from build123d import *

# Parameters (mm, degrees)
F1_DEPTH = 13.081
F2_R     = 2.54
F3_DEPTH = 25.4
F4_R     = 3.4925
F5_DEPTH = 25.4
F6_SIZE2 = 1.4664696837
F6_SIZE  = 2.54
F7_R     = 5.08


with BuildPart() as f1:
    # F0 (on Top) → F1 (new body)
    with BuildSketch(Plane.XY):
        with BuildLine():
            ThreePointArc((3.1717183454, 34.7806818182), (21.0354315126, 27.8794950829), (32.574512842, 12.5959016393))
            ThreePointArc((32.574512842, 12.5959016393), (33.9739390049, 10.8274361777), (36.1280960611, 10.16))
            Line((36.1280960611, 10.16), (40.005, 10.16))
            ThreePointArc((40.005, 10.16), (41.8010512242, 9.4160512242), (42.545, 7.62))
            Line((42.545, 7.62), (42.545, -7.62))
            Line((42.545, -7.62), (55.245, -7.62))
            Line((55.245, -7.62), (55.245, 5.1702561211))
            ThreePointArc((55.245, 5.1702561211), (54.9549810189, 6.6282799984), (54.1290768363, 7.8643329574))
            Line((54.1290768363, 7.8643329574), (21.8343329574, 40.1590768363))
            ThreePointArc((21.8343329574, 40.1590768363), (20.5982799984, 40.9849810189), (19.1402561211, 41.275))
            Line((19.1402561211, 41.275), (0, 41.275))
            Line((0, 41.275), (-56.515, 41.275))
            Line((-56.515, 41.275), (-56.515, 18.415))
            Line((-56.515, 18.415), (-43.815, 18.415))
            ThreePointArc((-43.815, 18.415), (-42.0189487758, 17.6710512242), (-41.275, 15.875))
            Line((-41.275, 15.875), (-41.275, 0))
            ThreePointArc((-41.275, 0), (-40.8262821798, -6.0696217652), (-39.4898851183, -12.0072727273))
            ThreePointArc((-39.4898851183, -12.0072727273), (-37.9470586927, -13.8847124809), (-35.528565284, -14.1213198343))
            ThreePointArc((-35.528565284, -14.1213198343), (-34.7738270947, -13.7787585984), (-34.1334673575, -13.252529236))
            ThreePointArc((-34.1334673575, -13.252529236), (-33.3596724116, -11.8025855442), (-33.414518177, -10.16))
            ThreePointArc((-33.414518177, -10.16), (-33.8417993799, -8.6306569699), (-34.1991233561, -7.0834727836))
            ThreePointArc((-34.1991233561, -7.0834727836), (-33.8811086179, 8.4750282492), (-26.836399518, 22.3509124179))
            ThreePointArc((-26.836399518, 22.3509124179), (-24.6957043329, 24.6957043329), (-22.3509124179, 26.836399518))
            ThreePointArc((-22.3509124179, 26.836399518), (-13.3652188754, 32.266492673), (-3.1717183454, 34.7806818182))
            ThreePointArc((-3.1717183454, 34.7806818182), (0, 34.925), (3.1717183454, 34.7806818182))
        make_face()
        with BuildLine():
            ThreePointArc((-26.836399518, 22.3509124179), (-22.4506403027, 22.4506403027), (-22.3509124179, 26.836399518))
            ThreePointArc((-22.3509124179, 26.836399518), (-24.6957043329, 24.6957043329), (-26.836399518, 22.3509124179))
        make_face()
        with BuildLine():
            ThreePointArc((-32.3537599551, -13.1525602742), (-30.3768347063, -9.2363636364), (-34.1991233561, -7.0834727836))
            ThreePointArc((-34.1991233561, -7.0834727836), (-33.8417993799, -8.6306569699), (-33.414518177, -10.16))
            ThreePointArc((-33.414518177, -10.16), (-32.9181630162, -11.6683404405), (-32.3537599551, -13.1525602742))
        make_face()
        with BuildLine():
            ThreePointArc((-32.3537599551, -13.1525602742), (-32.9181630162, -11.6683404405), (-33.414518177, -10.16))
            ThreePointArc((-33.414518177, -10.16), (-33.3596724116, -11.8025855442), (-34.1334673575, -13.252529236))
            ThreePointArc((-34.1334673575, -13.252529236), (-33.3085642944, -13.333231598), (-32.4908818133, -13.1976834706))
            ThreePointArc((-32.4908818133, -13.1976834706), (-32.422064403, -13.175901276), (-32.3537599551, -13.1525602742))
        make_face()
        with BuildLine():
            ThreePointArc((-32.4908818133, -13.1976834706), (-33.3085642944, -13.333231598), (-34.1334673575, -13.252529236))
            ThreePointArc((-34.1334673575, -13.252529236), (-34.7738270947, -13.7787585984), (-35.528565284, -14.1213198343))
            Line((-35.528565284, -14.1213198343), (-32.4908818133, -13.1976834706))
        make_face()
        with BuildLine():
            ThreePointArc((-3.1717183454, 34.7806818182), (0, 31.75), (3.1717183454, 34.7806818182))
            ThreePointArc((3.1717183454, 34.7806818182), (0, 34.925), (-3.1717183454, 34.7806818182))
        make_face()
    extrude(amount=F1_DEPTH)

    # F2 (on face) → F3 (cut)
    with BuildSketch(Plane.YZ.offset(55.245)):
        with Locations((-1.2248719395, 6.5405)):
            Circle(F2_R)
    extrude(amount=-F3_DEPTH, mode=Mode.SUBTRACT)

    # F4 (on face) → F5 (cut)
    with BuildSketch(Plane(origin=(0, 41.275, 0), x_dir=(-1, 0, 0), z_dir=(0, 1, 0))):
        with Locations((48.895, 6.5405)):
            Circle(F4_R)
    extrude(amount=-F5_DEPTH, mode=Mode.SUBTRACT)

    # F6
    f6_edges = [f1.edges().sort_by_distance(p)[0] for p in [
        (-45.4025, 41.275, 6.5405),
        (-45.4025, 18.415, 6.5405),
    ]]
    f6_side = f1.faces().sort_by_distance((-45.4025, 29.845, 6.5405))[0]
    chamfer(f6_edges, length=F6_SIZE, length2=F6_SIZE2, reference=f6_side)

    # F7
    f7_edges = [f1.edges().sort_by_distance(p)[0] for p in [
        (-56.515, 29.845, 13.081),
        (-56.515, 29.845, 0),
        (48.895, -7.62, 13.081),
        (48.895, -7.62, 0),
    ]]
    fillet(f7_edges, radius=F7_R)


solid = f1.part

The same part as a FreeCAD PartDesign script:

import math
import FreeCAD as App
import Part
import Sketcher
from FreeCAD import Vector
Q = App.Units.Quantity


def edges_at(feature, points):
    """Names of the edges that pass closest to the given points."""
    edges = feature.Shape.Edges
    near = lambda p: min(range(len(edges)), key=lambda i: edges[i].distToShape(Part.Vertex(*p))[0])
    return sorted({f"Edge{near(p) + 1}" for p in points})

doc = App.newDocument("Part")
body = doc.addObject("PartDesign::Body", "Body")

sketch1 = body.newObject("Sketcher::SketchObject", "Sketch")
sketch1.AttachmentSupport = (doc.getObject("XY_Plane"), [""])
sketch1.MapMode = "FlatFace"
sketch1.addGeometry(Part.ArcOfCircle(Part.Circle(Vector(0, 0, 0), Vector(0, 0, 1), 34.925), math.radians(21.140473), math.radians(84.789497)), False)
sketch1.addGeometry(Part.ArcOfCircle(Part.Circle(Vector(36.128096, 13.97, 0), Vector(0, 0, 1), 3.81), math.radians(-158.859527), math.radians(-90)), False)
sketch1.addGeometry(Part.LineSegment(Vector(36.128096, 10.16, 0), Vector(40.005, 10.16, 0)), False)
sketch1.addGeometry(Part.ArcOfCircle(Part.Circle(Vector(40.005, 7.62, 0), Vector(0, 0, 1), 2.54), math.radians(0), math.radians(90)), False)
sketch1.addGeometry(Part.LineSegment(Vector(42.545, 7.62, 0), Vector(42.545, -7.62, 0)), False)
sketch1.addGeometry(Part.LineSegment(Vector(42.545, -7.62, 0), Vector(55.245, -7.62, 0)), False)
sketch1.addGeometry(Part.LineSegment(Vector(55.245, -7.62, 0), Vector(55.245, 5.170256, 0)), False)
sketch1.addGeometry(Part.ArcOfCircle(Part.Circle(Vector(51.435, 5.170256, 0), Vector(0, 0, 1), 3.81), math.radians(0), math.radians(45)), False)
sketch1.addGeometry(Part.LineSegment(Vector(54.129077, 7.864333, 0), Vector(21.834333, 40.159077, 0)), False)
sketch1.addGeometry(Part.ArcOfCircle(Part.Circle(Vector(19.140256, 37.465, 0), Vector(0, 0, 1), 3.81), math.radians(45), math.radians(90)), False)
sketch1.addGeometry(Part.LineSegment(Vector(19.140256, 41.275, 0), Vector(-56.515, 41.275, 0)), False)
sketch1.addGeometry(Part.LineSegment(Vector(-56.515, 41.275, 0), Vector(-56.515, 18.415, 0)), False)
sketch1.addGeometry(Part.LineSegment(Vector(-56.515, 18.415, 0), Vector(-43.815, 18.415, 0)), False)
sketch1.addGeometry(Part.ArcOfCircle(Part.Circle(Vector(-43.815, 15.875, 0), Vector(0, 0, 1), 2.54), math.radians(0), math.radians(90)), False)
sketch1.addGeometry(Part.LineSegment(Vector(-41.275, 15.875, 0), Vector(-41.275, 0, 0)), False)
sketch1.addGeometry(Part.ArcOfCircle(Part.Circle(Vector(0, 0, 0), Vector(0, 0, 1), 41.275), math.radians(-180), math.radians(-163.08761)), False)
sketch1.addGeometry(Part.ArcOfCircle(Part.Circle(Vector(-36.452202, -11.083636, 0), Vector(0, 0, 1), 3.175), math.radians(-163.08761), math.radians(-73.08761)), False)
sketch1.addGeometry(Part.LineSegment(Vector(-35.528565, -14.12132, 0), Vector(-32.490882, -13.197683, 0)), False)
sketch1.addGeometry(Part.ArcOfCircle(Part.Circle(Vector(-33.414518, -10.16, 0), Vector(0, 0, 1), 3.175), math.radians(-73.08761), math.radians(-70.482359)), False)
sketch1.addGeometry(Part.ArcOfCircle(Part.Circle(Vector(-33.414518, -10.16, 0), Vector(0, 0, 1), 3.175), math.radians(-70.482359), math.radians(104.307139)), False)
sketch1.addGeometry(Part.ArcOfCircle(Part.Circle(Vector(0, 0, 0), Vector(0, 0, 1), 34.925), math.radians(140.210503), math.radians(191.701887)), False)
sketch1.addGeometry(Part.ArcOfCircle(Part.Circle(Vector(-24.695704, 24.695704, 0), Vector(0, 0, 1), 3.175), math.radians(-132.394749), math.radians(42.394749)), False)
sketch1.addGeometry(Part.ArcOfCircle(Part.Circle(Vector(0, 0, 0), Vector(0, 0, 1), 34.925), math.radians(95.210503), math.radians(129.789497)), False)
sketch1.addGeometry(Part.ArcOfCircle(Part.Circle(Vector(0, 34.925, 0), Vector(0, 0, 1), 3.175), math.radians(-177.394749), math.radians(-2.605251)), False)
sketch1.addConstraint(Sketcher.Constraint("Tangent", 0, 1, 1, 1))
sketch1.addConstraint(Sketcher.Constraint("Tangent", 1, 2, 2, 1))
sketch1.addConstraint(Sketcher.Constraint("Tangent", 2, 2, 3, 2))
sketch1.addConstraint(Sketcher.Constraint("Tangent", 3, 1, 4, 1))
sketch1.addConstraint(Sketcher.Constraint("Coincident", 4, 2, 5, 1))
sketch1.addConstraint(Sketcher.Constraint("Coincident", 5, 2, 6, 1))
sketch1.addConstraint(Sketcher.Constraint("Tangent", 6, 2, 7, 1))
sketch1.addConstraint(Sketcher.Constraint("Tangent", 7, 2, 8, 1))
sketch1.addConstraint(Sketcher.Constraint("Tangent", 8, 2, 9, 1))
sketch1.addConstraint(Sketcher.Constraint("Tangent", 9, 2, 10, 1))
sketch1.addConstraint(Sketcher.Constraint("Coincident", 10, 2, 11, 1))
sketch1.addConstraint(Sketcher.Constraint("Coincident", 11, 2, 12, 1))
sketch1.addConstraint(Sketcher.Constraint("Tangent", 12, 2, 13, 2))
sketch1.addConstraint(Sketcher.Constraint("Tangent", 13, 1, 14, 1))
sketch1.addConstraint(Sketcher.Constraint("Tangent", 14, 2, 15, 1))
sketch1.addConstraint(Sketcher.Constraint("Tangent", 15, 2, 16, 1))
sketch1.addConstraint(Sketcher.Constraint("Tangent", 16, 2, 17, 1))
sketch1.addConstraint(Sketcher.Constraint("Tangent", 17, 2, 18, 1))
sketch1.addConstraint(Sketcher.Constraint("Tangent", 18, 2, 19, 1))
sketch1.addConstraint(Sketcher.Constraint("Coincident", 19, 2, 20, 2))
sketch1.addConstraint(Sketcher.Constraint("Coincident", 20, 1, 21, 1))
sketch1.addConstraint(Sketcher.Constraint("Coincident", 21, 2, 22, 2))
sketch1.addConstraint(Sketcher.Constraint("Coincident", 22, 1, 23, 1))
sketch1.addConstraint(Sketcher.Constraint("Coincident", 23, 2, 0, 2))
sketch1.addConstraint(Sketcher.Constraint("Horizontal", 2))
sketch1.addConstraint(Sketcher.Constraint("Vertical", 4))
sketch1.addConstraint(Sketcher.Constraint("Horizontal", 5))
sketch1.addConstraint(Sketcher.Constraint("Vertical", 6))
sketch1.addConstraint(Sketcher.Constraint("Horizontal", 10))
sketch1.addConstraint(Sketcher.Constraint("Vertical", 11))
sketch1.addConstraint(Sketcher.Constraint("Horizontal", 12))
sketch1.addConstraint(Sketcher.Constraint("Vertical", 14))
sketch1.addConstraint(Sketcher.Constraint("Coincident", 0, 3, -1, 1))
sketch1.addConstraint(Sketcher.Constraint("Coincident", 15, 3, -1, 1))
sketch1.addConstraint(Sketcher.Constraint("Coincident", 20, 3, -1, 1))
sketch1.addConstraint(Sketcher.Constraint("Coincident", 22, 3, -1, 1))
sketch1.addConstraint(Sketcher.Constraint("Equal", 1, 7))
sketch1.addConstraint(Sketcher.Constraint("Equal", 7, 9))
sketch1.addConstraint(Sketcher.Constraint("Equal", 3, 13))
sketch1.addConstraint(Sketcher.Constraint("Equal", 16, 18))
sketch1.addConstraint(Sketcher.Constraint("Equal", 18, 19))
sketch1.addConstraint(Sketcher.Constraint("Equal", 0, 20))
sketch1.addConstraint(Sketcher.Constraint("Equal", 19, 21))
sketch1.addConstraint(Sketcher.Constraint("Equal", 20, 22))
sketch1.addConstraint(Sketcher.Constraint("Equal", 21, 23))
sketch1.addConstraint(Sketcher.Constraint("PointOnObject", 23, 3, -2))
sketch1.addConstraint(Sketcher.Constraint("Equal", 5, 12))
sketch1.addConstraint(Sketcher.Constraint("Radius", 3, Q("0.1 in")))
sketch1.addConstraint(Sketcher.Constraint("Radius", 1, Q("0.15 in")))
sketch1.addConstraint(Sketcher.Constraint("DistanceX", 5, 1, 5, 2, Q("0.5 in")))
sketch1.addConstraint(Sketcher.Constraint("DistanceY", 4, 2, 4, 1, Q("0.6 in")))
sketch1.addConstraint(Sketcher.Constraint("DistanceY", 11, 2, 11, 1, Q("0.9 in")))
sketch1.addConstraint(Sketcher.Constraint("Angle", 8, Q("135 deg")))
sketch1.addConstraint(Sketcher.Constraint("Radius", 0, Q("1.375 in")))
sketch1.addConstraint(Sketcher.Constraint("Radius", 15, Q("1.625 in")))
sketch1.addConstraint(Sketcher.Constraint("Radius", 16, Q("0.125 in")))
sketch1.addConstraint(Sketcher.Constraint("DistanceY", -1, 1, 3, 3, Q("0.3 in")))
sketch1.addConstraint(Sketcher.Constraint("DistanceY", 18, 3, -1, 1, Q("0.4 in")))
sketch1.addConstraint(Sketcher.Constraint("DistanceX", 13, 3, 3, 3, Q("3.3 in")))
sketch1.addConstraint(Sketcher.Constraint("DistanceY", 23, 3, 9, 3, Q("0.1 in")))
sketch1.addConstraint(Sketcher.Constraint("DistanceY", 14, 2, 14, 1, Q("0.625 in")))
sketch1.addConstraint(Sketcher.Constraint("Distance", 17, Q("0.125 in")))
sketch1.addConstraint(Sketcher.Constraint("DistanceX", 16, 3, -1, 1, Q("36.452202 mm")))
sketch1.addConstraint(Sketcher.Constraint("DistanceX", 20, 1, -1, 1, Q("26.8364 mm")))
sketch1.addConstraint(Sketcher.Constraint("DistanceY", -1, 1, 21, 2, Q("26.8364 mm")))
sketch1.addConstraint(Sketcher.Constraint("DistanceX", 10, 2, 10, 1, Q("75.655256 mm")))
sketch1.addConstraint(Sketcher.Constraint("DistanceX", 18, 2, -1, 1, Q("32.35376 mm")))
pad1 = body.newObject("PartDesign::Pad", "Pad")
pad1.Profile = sketch1
pad1.Length = Q("0.515 in")

sketch2 = body.newObject("Sketcher::SketchObject", "Sketch001")
sketch2.AttachmentSupport = (doc.getObject("YZ_Plane"), [""])
sketch2.MapMode = "FlatFace"
sketch2.AttachmentOffset = App.Placement(Vector(0, 0, 2.175 * 25.4), App.Rotation())
sketch2.addGeometry(Part.Circle(Vector(-1.224872, 6.5405, 0), Vector(0, 0, 1), 2.54), False)
sketch2.addConstraint(Sketcher.Constraint("Diameter", 0, Q("0.2 in")))
sketch2.addConstraint(Sketcher.Constraint("DistanceY", -1, 1, 0, 3, Q("0.2575 in")))
sketch2.addConstraint(Sketcher.Constraint("DistanceX", 0, 3, -1, 1, Q("1.224872 mm")))
pocket1 = body.newObject("PartDesign::Pocket", "Pocket")
pocket1.Profile = sketch2
pocket1.Length = Q("1 in")

sketch3 = body.newObject("Sketcher::SketchObject", "Sketch002")
sketch3.AttachmentSupport = (doc.getObject("XZ_Plane"), [""])
sketch3.MapMode = "FlatFace"
sketch3.AttachmentOffset = App.Placement(Vector(0, 0, -1.625 * 25.4), App.Rotation())
sketch3.addGeometry(Part.Circle(Vector(-48.895, 6.5405, 0), Vector(0, 0, 1), 3.4925), False)
sketch3.addConstraint(Sketcher.Constraint("Diameter", 0, Q("0.275 in")))
sketch3.addConstraint(Sketcher.Constraint("DistanceX", 0, 3, -1, 1, Q("1.925 in")))
sketch3.addConstraint(Sketcher.Constraint("DistanceY", -1, 1, 0, 3, Q("0.2575 in")))
pocket2 = body.newObject("PartDesign::Pocket", "Pocket001")
pocket2.Profile = sketch3
pocket2.Length = Q("1 in")
pocket2.Reversed = True
doc.recompute()

chamfer = body.newObject("PartDesign::Chamfer", "Chamfer")
chamfer.Base = (pocket2, edges_at(pocket2, [(-45.403, 41.275, 6.54), (-45.403, 18.415, 6.54)]))
chamfer.ChamferType = "Two distances"
chamfer.Size = Q("0.1 in")
chamfer.Size2 = 1.46647
chamfer.FlipDirection = True
doc.recompute()

fillet = body.newObject("PartDesign::Fillet", "Fillet")
fillet.Base = (chamfer, edges_at(chamfer, [
    (-56.515, 29.845, 13.081),
    (-56.515, 29.845, 0),
    (48.895, -7.62, 13.081),
    (48.895, -7.62, 0),
]))
fillet.Radius = Q("0.2 in")

doc.recompute()
